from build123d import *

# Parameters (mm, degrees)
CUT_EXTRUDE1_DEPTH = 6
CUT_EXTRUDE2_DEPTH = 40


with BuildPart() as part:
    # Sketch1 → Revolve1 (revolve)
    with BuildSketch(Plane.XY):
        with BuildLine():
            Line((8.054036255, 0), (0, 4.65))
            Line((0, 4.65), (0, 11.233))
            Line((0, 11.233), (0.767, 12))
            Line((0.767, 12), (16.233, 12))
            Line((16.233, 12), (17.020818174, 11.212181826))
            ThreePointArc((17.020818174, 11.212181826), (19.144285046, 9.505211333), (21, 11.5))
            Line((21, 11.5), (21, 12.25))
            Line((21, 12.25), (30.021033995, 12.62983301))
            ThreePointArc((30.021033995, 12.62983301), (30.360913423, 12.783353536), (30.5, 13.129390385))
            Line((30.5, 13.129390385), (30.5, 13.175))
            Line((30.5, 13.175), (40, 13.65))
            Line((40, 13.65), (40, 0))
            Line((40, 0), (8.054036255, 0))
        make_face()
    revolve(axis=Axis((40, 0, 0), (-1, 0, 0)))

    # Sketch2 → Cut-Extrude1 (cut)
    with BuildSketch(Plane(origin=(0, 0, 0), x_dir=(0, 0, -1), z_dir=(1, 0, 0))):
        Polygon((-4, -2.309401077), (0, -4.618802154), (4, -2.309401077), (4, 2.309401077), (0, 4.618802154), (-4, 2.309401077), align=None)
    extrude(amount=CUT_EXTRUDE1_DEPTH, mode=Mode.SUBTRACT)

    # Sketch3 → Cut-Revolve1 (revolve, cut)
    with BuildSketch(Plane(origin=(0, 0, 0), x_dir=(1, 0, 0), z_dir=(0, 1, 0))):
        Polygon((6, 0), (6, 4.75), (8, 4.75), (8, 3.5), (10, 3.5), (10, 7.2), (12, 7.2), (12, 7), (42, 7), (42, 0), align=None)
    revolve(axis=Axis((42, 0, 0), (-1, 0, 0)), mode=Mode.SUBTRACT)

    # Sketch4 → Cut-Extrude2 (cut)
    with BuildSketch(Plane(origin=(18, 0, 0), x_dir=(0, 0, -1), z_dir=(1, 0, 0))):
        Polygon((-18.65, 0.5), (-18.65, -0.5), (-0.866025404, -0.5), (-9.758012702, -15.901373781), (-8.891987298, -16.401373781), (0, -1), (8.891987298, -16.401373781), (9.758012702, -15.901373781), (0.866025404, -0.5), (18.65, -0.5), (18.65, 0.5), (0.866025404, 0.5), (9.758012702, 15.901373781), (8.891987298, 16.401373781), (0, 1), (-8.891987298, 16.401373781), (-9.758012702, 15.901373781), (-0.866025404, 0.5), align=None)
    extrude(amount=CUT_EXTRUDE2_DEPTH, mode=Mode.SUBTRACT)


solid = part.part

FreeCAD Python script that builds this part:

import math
import FreeCAD as App
import Part
import Sketcher

V = App.Vector
Q = App.Units.Quantity


def add_polygon(sketch, points):
    """Adds a closed chain of lines whose ends are joined by coincident constraints."""
    first, n = sketch.GeometryCount, len(points)
    for a, b in zip(points, points[1:] + points[:1]):
        sketch.addGeometry(Part.LineSegment(App.Vector(*a, 0), App.Vector(*b, 0)), False)
    for i in range(n):
        sketch.addConstraint(Sketcher.Constraint("Coincident", first + i, 2, first + (i + 1) % n, 1))

doc = App.newDocument("Part")
body = doc.addObject("PartDesign::Body", "Body")

sketch1 = body.newObject("Sketcher::SketchObject", "Sketch")
sketch1.AttachmentSupport = (doc.getObject("XY_Plane"), [""])
sketch1.MapMode = "FlatFace"
sketch1.addGeometry([
    Part.LineSegment(V(0, 4.65, 0), V(8.054, 0, 0)),
    Part.LineSegment(V(8.054, 0, 0), V(40, 0, 0)),
    Part.LineSegment(V(40, 0, 0), V(40, 13.65, 0)),
    Part.LineSegment(V(40, 13.65, 0), V(30.5, 13.175, 0)),
    Part.LineSegment(V(30.5, 13.175, 0), V(30.5, 13.129, 0)),
    Part.ArcOfCircle(Part.Circle(V(30, 13.129, 0), V(0, 0, 1), 0.5), math.radians(-88), math.radians(0)),
    Part.LineSegment(V(30.021, 12.63, 0), V(21, 12.25, 0)),
    Part.LineSegment(V(21, 12.25, 0), V(21, 11.5, 0)),
    Part.ArcOfCircle(Part.Circle(V(19, 11.5, 0), V(0, 0, 1), 2), math.radians(-172), math.radians(0)),
    Part.LineSegment(V(17.021, 11.212, 0), V(16.233, 12, 0)),
    Part.LineSegment(V(16.233, 12, 0), V(0.767, 12, 0)),
    Part.LineSegment(V(0.767, 12, 0), V(0, 11.233, 0)),
    Part.LineSegment(V(0, 11.233, 0), V(0, 4.65, 0)),
], False)
sketch1.addConstraint([
    Sketcher.Constraint("Coincident", 0, 2, 1, 1),
    Sketcher.Constraint("Coincident", 1, 2, 2, 1),
    Sketcher.Constraint("Coincident", 2, 2, 3, 1),
    Sketcher.Constraint("Coincident", 3, 2, 4, 1),
    Sketcher.Constraint("Tangent", 4, 2, 5, 2),
    Sketcher.Constraint("Tangent", 5, 1, 6, 1),
    Sketcher.Constraint("Coincident", 6, 2, 7, 1),
    Sketcher.Constraint("Tangent", 7, 2, 8, 2),
    Sketcher.Constraint("Coincident", 8, 1, 9, 1),
    Sketcher.Constraint("Coincident", 9, 2, 10, 1),
    Sketcher.Constraint("Coincident", 10, 2, 11, 1),
    Sketcher.Constraint("Coincident", 11, 2, 12, 1),
    Sketcher.Constraint("Coincident", 12, 2, 0, 1),
    Sketcher.Constraint("Horizontal", 1),
    Sketcher.Constraint("Vertical", 2),
    Sketcher.Constraint("Vertical", 4),
    Sketcher.Constraint("Vertical", 7),
    Sketcher.Constraint("Horizontal", 10),
    Sketcher.Constraint("Vertical", 12),
    Sketcher.Constraint("PointOnObject", 0, 2, -1),
    Sketcher.Constraint("PointOnObject", 11, 2, -2),
    Sketcher.Constraint("Perpendicular", 9, 11),
    Sketcher.Constraint("Radius", 8, Q("2 mm")),
    Sketcher.Constraint("Radius", 5, Q("0.5 mm")),
    Sketcher.Constraint("Angle", 0, Q("-30 deg")),
    Sketcher.Constraint("Angle", 9, Q("135 deg")),
    Sketcher.Constraint("DistanceX", -1, 1, 5, 3, Q("30 mm")),
    Sketcher.Constraint("DistanceX", -1, 1, 8, 3, Q("19 mm")),
    Sketcher.Constraint("DistanceX", -1, 1, 1, 2, Q("40 mm")),
    Sketcher.Constraint("DistanceY", -1, 1, 9, 2, Q("12 mm")),
    Sketcher.Constraint("Distance", 0, Q("9.3 mm")),
    Sketcher.Constraint("DistanceY", 2, 1, 2, 2, Q("13.65 mm")),
    Sketcher.Constraint("DistanceY", 7, 2, 7, 1, Q("0.75 mm")),
    Sketcher.Constraint("DistanceY", -1, 1, 8, 3, Q("11.5 mm")),
    Sketcher.Constraint("DistanceX", 10, 2, 10, 1, Q("15.466 mm")),
    Sketcher.Constraint("DistanceY", 12, 2, 12, 1, Q("6.583 mm")),
    Sketcher.Constraint("DistanceY", -1, 1, 3, 2, Q("13.175 mm")),
    Sketcher.Constraint("DistanceY", 4, 2, 4, 1, Q("0.04561 mm")),
])
revolution = body.newObject("PartDesign::Revolution", "Revolution")
revolution.Profile = sketch1
revolution.ReferenceAxis = (sketch1, ["H_Axis"])
revolution.Angle = 360

sketch2 = body.newObject("Sketcher::SketchObject", "Sketch001")
sketch2.AttachmentSupport = (doc.getObject("YZ_Plane"), [""])
sketch2.MapMode = "FlatFace"
add_polygon(sketch2, [(-2.3, 4), (-4.6, 0), (-2.3, -4), (2.3, -4), (4.6, 0), (2.3, 4)])
sketch2.addConstraint([
    Sketcher.Constraint("Horizontal", 2),
    Sketcher.Constraint("Horizontal", 5),
    Sketcher.Constraint("Symmetric", 0, 2, 3, 2, -1, 1),
    Sketcher.Constraint("Symmetric", 1, 2, 4, 2, -1, 1),
    Sketcher.Constraint("PointOnObject", 0, 2, -1),
    Sketcher.Constraint("Parallel", 0, 3),
    Sketcher.Constraint("Vertical", 2, 2, 4, 2),
    Sketcher.Constraint("Angle", 0, Q("-120 deg")),
    Sketcher.Constraint("DistanceY", 1, 2, -1, 1, Q("4 mm")),
    Sketcher.Constraint("DistanceX", 1, 2, -1, 1, Q("2.309401 mm")),
])
pocket1 = body.newObject("PartDesign::Pocket", "Pocket")
pocket1.Profile = sketch2
pocket1.Length = 6
pocket1.Reversed = True

sketch3 = body.newObject("Sketcher::SketchObject", "Sketch002")
sketch3.AttachmentSupport = (doc.getObject("XZ_Plane"), [""])
sketch3.MapMode = "FlatFace"
add_polygon(sketch3, [(6, -4.75), (6, 0), (42, 0), (42, -7), (12, -7), (12, -7.2), (10, -7.2), (10, -3.5), (8, -3.5), (8, -4.75)])
sketch3.addConstraint([
    Sketcher.Constraint("Vertical", 0),
    Sketcher.Constraint("Horizontal", 1),
    Sketcher.Constraint("Vertical", 2),
    Sketcher.Constraint("Horizontal", 3),
    Sketcher.Constraint("Vertical", 4),
    Sketcher.Constraint("Horizontal", 5),
    Sketcher.Constraint("Vertical", 6),
    Sketcher.Constraint("Horizontal", 7),
    Sketcher.Constraint("Vertical", 8),
    Sketcher.Constraint("Horizontal", 9),
    Sketcher.Constraint("PointOnObject", 0, 2, -1),
    Sketcher.Constraint("Equal", 5, 7),
    Sketcher.Constraint("Equal", 7, 9),
    Sketcher.Constraint("DistanceX", 1, 1, 1, 2, Q("36 mm")),
    Sketcher.Constraint("DistanceX", 3, 2, 3, 1, Q("30 mm")),
    Sketcher.Constraint("DistanceY", 2, 2, 2, 1, Q("7 mm")),
    Sketcher.Constraint("DistanceY", 4, 2, 4, 1, Q("0.2 mm")),
    Sketcher.Constraint("DistanceY", 6, 1, 6, 2, Q("3.7 mm")),
    Sketcher.Constraint("DistanceX", -1, 1, 0, 2, Q("6 mm")),
    Sketcher.Constraint("DistanceY", 0, 1, 0, 2, Q("4.75 mm")),
])
groove = body.newObject("PartDesign::Groove", "Groove")
groove.Profile = sketch3
groove.ReferenceAxis = (sketch3, ["H_Axis"])
groove.Angle = 360

sketch4 = body.newObject("Sketcher::SketchObject", "Sketch003")
sketch4.AttachmentSupport = (doc.getObject("YZ_Plane"), [""])
sketch4.MapMode = "FlatFace"
sketch4.AttachmentOffset = App.Placement(V(0, 0, 18), App.Rotation())
add_polygon(sketch4, [(0.5, 18.6), (-0.5, 18.6), (-0.5, 0.9), (-15.9, 9.8), (-16.4, 8.9), (-1, 0), (-16.4, -8.9), (-15.9, -9.8), (-0.5, -0.9), (-0.5, -18.6), (0.5, -18.6), (0.5, -0.9), (15.9, -9.8), (16.4, -8.9), (1, 0), (16.4, 8.9), (15.9, 9.8), (0.5, 0.9)])
sketch4.addConstraint([
    Sketcher.Constraint("Horizontal", 0),
    Sketcher.Constraint("Vertical", 1),
    Sketcher.Constraint("Vertical", 8),
    Sketcher.Constraint("Horizontal", 9),
    Sketcher.Constraint("Vertical", 10),
    Sketcher.Constraint("Vertical", 17),
    Sketcher.Constraint("Symmetric", 0, 2, 9, 2, -1, 1),
    Sketcher.Constraint("Symmetric", 2, 2, 11, 2, -1, 1),
    Sketcher.Constraint("Symmetric", 3, 2, 12, 2, -1, 1),
    Sketcher.Constraint("Symmetric", 4, 2, 13, 2, -1, 1),
    Sketcher.Constraint("Symmetric", 5, 2, 14, 2, -1, 1),
    Sketcher.Constraint("Symmetric", 6, 2, 15, 2, -1, 1),
    Sketcher.Constraint("Symmetric", 7, 2, 16, 2, -1, 1),
    Sketcher.Constraint("Symmetric", 7, 2, 10, 2, -2),
    Sketcher.Constraint("Symmetric", 6, 2, 11, 2, -2),
    Sketcher.Constraint("Symmetric", 5, 2, 12, 2, -2),
    Sketcher.Constraint("PointOnObject", 4, 2, -1),
    Sketcher.Constraint("Perpendicular", 2, 3),
    Sketcher.Constraint("Perpendicular", 3, 4),
    Sketcher.Constraint("Perpendicular", 6, 7),
    Sketcher.Constraint("Equal", 2, 4),
    Sketcher.Constraint("DistanceX", 0, 2, 0, 1, Q("1 mm")),
    Sketcher.Constraint("Angle", 2, Q("150 deg")),
    Sketcher.Constraint("Distance", 3, Q("1 mm")),
    Sketcher.Constraint("DistanceY", -1, 1, 0, 2, Q("18.65 mm")),
    Sketcher.Constraint("DistanceY", 5, 2, 2, 2, Q("18.65 mm")),
])
pocket2 = body.newObject("PartDesign::Pocket", "Pocket001")
pocket2.Profile = sketch4
pocket2.Length = 40
pocket2.Reversed = True

doc.recompute()
